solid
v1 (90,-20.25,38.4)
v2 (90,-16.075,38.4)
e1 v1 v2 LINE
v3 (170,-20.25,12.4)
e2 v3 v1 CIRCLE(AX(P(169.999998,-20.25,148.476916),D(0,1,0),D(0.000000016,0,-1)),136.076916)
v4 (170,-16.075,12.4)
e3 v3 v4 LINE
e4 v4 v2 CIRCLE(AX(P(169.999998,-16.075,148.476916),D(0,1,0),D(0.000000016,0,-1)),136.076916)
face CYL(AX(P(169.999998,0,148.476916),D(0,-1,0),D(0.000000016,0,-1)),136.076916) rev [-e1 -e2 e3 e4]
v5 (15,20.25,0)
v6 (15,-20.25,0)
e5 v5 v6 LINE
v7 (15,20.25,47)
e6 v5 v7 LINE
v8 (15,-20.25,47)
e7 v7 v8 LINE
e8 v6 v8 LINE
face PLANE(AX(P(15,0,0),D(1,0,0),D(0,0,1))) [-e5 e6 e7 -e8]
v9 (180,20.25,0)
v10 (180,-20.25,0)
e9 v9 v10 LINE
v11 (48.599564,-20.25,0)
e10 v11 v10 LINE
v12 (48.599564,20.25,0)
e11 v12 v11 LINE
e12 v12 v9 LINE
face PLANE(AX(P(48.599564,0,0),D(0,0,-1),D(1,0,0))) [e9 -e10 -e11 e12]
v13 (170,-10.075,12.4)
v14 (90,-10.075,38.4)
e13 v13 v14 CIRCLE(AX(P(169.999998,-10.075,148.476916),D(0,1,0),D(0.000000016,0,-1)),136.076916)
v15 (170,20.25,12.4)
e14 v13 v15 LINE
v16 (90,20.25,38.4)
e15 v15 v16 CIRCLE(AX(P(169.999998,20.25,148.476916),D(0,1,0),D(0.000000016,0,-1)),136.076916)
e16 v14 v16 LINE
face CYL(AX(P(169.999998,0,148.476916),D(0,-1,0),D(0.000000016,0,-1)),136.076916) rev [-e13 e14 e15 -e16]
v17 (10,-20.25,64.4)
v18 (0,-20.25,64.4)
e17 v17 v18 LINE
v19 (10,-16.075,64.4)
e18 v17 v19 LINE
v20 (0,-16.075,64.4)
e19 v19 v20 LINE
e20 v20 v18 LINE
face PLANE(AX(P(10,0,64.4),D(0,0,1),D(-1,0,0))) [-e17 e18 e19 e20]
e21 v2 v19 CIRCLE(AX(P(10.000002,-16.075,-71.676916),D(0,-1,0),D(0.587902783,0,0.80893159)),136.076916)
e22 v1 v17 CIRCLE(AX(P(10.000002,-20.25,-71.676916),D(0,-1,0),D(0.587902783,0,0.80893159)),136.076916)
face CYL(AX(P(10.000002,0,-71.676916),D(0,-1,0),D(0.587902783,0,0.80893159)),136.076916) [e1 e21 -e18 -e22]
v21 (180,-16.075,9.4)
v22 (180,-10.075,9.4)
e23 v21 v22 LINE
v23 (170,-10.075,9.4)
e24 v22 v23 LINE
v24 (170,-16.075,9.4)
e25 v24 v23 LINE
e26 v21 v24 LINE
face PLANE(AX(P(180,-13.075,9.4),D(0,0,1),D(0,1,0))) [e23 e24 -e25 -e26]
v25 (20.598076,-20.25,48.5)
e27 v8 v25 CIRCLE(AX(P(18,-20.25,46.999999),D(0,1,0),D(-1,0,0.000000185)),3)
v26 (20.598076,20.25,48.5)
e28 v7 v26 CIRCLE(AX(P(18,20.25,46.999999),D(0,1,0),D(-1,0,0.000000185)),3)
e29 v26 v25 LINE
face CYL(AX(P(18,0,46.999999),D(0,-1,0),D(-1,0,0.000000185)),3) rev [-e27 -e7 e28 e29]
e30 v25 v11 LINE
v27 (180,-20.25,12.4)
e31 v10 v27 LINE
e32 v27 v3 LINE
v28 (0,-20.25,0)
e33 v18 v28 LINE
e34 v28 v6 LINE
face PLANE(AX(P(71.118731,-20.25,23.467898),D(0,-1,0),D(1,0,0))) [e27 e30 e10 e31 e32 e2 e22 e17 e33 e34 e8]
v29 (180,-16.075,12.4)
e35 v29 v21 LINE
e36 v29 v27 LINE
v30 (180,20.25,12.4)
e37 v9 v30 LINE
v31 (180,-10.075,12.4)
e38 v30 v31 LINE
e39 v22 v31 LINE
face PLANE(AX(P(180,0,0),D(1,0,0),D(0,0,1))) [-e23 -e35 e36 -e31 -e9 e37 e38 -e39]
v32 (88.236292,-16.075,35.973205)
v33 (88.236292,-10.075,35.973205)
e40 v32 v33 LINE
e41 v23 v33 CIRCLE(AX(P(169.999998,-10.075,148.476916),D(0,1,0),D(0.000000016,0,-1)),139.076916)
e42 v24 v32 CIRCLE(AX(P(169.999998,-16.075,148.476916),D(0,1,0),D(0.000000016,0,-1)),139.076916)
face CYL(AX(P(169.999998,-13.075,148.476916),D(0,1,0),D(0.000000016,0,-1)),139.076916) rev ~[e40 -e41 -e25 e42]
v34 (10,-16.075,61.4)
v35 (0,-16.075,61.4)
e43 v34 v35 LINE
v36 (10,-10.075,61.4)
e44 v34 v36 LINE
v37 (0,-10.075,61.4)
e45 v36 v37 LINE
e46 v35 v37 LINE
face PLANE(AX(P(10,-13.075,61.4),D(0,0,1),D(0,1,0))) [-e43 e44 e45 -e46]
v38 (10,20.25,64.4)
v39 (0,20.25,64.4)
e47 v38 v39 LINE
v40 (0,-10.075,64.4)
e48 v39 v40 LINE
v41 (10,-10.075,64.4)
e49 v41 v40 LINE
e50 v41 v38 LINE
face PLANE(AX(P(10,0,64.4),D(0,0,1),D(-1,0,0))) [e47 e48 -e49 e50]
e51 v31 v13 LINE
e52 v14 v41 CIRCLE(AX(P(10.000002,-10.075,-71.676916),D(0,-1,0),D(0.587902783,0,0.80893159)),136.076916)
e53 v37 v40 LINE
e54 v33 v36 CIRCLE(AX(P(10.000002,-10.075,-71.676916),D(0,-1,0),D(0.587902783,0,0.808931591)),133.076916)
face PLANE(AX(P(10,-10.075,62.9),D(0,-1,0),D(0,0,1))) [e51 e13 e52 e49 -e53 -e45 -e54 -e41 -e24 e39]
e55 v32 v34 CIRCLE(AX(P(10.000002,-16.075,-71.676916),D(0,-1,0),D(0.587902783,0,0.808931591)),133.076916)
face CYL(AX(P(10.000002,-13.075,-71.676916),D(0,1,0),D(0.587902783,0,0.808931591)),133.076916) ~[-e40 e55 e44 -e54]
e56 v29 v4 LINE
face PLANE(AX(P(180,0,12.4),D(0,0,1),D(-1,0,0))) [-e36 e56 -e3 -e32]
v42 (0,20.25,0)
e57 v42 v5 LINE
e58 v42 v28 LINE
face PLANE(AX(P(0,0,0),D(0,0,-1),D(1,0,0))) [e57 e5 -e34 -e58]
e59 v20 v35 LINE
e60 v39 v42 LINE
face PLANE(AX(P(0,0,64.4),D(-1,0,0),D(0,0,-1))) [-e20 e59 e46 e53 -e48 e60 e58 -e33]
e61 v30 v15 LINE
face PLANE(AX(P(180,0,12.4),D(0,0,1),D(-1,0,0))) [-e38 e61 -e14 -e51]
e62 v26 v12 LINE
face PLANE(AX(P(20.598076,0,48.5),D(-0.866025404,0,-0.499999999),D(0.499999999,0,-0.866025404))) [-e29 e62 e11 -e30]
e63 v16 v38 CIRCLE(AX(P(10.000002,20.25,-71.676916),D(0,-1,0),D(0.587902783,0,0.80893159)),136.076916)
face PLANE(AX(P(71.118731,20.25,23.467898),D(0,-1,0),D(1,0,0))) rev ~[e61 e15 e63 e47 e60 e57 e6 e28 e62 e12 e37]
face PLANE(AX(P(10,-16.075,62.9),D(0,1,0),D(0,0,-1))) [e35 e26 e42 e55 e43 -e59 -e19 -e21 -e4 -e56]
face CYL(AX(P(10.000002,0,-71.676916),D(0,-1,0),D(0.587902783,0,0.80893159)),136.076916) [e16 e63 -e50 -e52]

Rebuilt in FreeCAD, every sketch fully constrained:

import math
import FreeCAD as App
import Part
import Sketcher

V = App.Vector
Q = App.Units.Quantity

doc = App.newDocument("Part")
body = doc.addObject("PartDesign::Body", "Body")

sketch1 = doc.addObject("Sketcher::SketchObject", "Sketch")
body.addObject(sketch1)
sketch1.AttachmentSupport = (doc.XZ_Plane, [""])
sketch1.MapMode = "FlatFace"
sketch1.addGeometry([
    Part.LineSegment(V(10, 64.4, 0), V(0, 64.4, 0)),
    Part.LineSegment(V(0, 64.4, 0), V(0, 0, 0)),
    Part.LineSegment(V(0, 0, 0), V(15, 0, 0)),
    Part.LineSegment(V(15, 0, 0), V(15, 47, 0)),
    Part.ArcOfCircle(Part.Circle(V(18, 47, 0), V(0, 0, 1), 3), math.radians(30), math.radians(180)),
    Part.LineSegment(V(20.6, 48.5, 0), V(48.6, 0, 0)),
    Part.LineSegment(V(48.6, 0, 0), V(180, 0, 0)),
    Part.LineSegment(V(180, 0, 0), V(180, 12.4, 0)),
    Part.LineSegment(V(180, 12.4, 0), V(170, 12.4, 0)),
    Part.ArcOfCircle(Part.Circle(V(170, 148.5, 0), V(0, 0, 1), 136.1), math.radians(-126), math.radians(-90)),
    Part.ArcOfCircle(Part.Circle(V(10, -71.7, 0), V(0, 0, 1), 136.1), math.radians(54), math.radians(90)),
], False)
sketch1.addConstraint([
    Sketcher.Constraint("Coincident", 0, 2, 1, 1),
    Sketcher.Constraint("Coincident", 1, 2, 2, 1),
    Sketcher.Constraint("Coincident", 2, 2, 3, 1),
    Sketcher.Constraint("Tangent", 3, 2, 4, 2),
    Sketcher.Constraint("Tangent", 4, 1, 5, 1),
    Sketcher.Constraint("Coincident", 5, 2, 6, 1),
    Sketcher.Constraint("Coincident", 6, 2, 7, 1),
    Sketcher.Constraint("Coincident", 7, 2, 8, 1),
    Sketcher.Constraint("Tangent", 8, 2, 9, 2),
    Sketcher.Constraint("Tangent", 9, 1, 10, 1),
    Sketcher.Constraint("Tangent", 10, 2, 0, 1),
    Sketcher.Constraint("Horizontal", 0),
    Sketcher.Constraint("Vertical", 1),
    Sketcher.Constraint("Horizontal", 2),
    Sketcher.Constraint("Vertical", 3),
    Sketcher.Constraint("Horizontal", 6),
    Sketcher.Constraint("Vertical", 7),
    Sketcher.Constraint("Horizontal", 8),
    Sketcher.Constraint("Coincident", 1, 2, -1, 1),
    Sketcher.Constraint("Equal", 9, 10),
    Sketcher.Constraint("PointOnObject", 5, 2, -1),
    Sketcher.Constraint("Equal", 0, 8),
    Sketcher.Constraint("Radius", 4, 3.0),
    Sketcher.Constraint("DistanceX", 0, 2, 0, 1, 10.0),
    Sketcher.Constraint("DistanceX", 2, 1, 2, 2, 15.0),
    Sketcher.Constraint("DistanceY", 3, 1, 3, 2, 47.0),
    Sketcher.Constraint("Angle", 5, Q("-60 deg")),
    Sketcher.Constraint("DistanceY", 1, 2, 1, 1, 64.4),
    Sketcher.Constraint("DistanceY", 7, 1, 7, 2, 12.4),
    Sketcher.Constraint("DistanceX", -1, 1, 6, 2, 180.0),
])
pad1 = doc.addObject("PartDesign::Pad", "Pad")
body.addObject(pad1)
pad1.Profile = sketch1
pad1.Length = 40.5
pad1.Midplane = True

sketch2 = doc.addObject("Sketcher::SketchObject", "Sketch001")
body.addObject(sketch2)
sketch2.AttachmentSupport = (doc.YZ_Plane, [""])
sketch2.MapMode = "FlatFace"
sketch2.AttachmentOffset = App.Placement(V(0, 0, 180), App.Rotation())
sketch2.addGeometry([
    Part.LineSegment(V(-16.1, 12.4, 0), V(-16.1, 9.4, 0)),
    Part.LineSegment(V(-16.1, 9.4, 0), V(-10.1, 9.4, 0)),
    Part.LineSegment(V(-10.1, 9.4, 0), V(-10.1, 12.4, 0)),
    Part.LineSegment(V(-10.1, 12.4, 0), V(-16.1, 12.4, 0)),
], False)
sketch2.addConstraint([
    Sketcher.Constraint("Coincident", 0, 2, 1, 1),
    Sketcher.Constraint("Coincident", 1, 2, 2, 1),
    Sketcher.Constraint("Coincident", 2, 2, 3, 1),
    Sketcher.Constraint("Coincident", 3, 2, 0, 1),
    Sketcher.Constraint("Vertical", 0),
    Sketcher.Constraint("Horizontal", 1),
    Sketcher.Constraint("Vertical", 2),
    Sketcher.Constraint("Horizontal", 3),
    Sketcher.Constraint("DistanceX", 1, 1, 1, 2, 6.0),
    Sketcher.Constraint("DistanceY", 0, 2, 0, 1, 3.0),
    Sketcher.Constraint("DistanceY", -1, 1, 0, 2, 9.4),
    Sketcher.Constraint("DistanceX", 0, 2, -1, 1, 16.075),
])

sketch3 = doc.addObject("Sketcher::SketchObject", "Sketch002")
body.addObject(sketch3)
sketch3.AttachmentSupport = (doc.XZ_Plane, [""])
sketch3.MapMode = "FlatFace"
sketch3.addGeometry([
    Part.LineSegment(V(180, 12, 0), V(170, 12, 0)),
    Part.ArcOfCircle(Part.Circle(V(170, 148, 0), V(0, 0, 1), 136), math.radians(-126), math.radians(-90)),
    Part.ArcOfCircle(Part.Circle(V(10, -72, 0), V(0, 0, 1), 136), math.radians(54), math.radians(90)),
    Part.LineSegment(V(10, 64, 0), V(0, 64, 0)),
], False)
sketch3.addConstraint([
    Sketcher.Constraint("Tangent", 0, 2, 1, 2),
    Sketcher.Constraint("Tangent", 1, 1, 2, 1),
    Sketcher.Constraint("Tangent", 2, 2, 3, 1),
    Sketcher.Constraint("Horizontal", 0),
    Sketcher.Constraint("Horizontal", 3),
    Sketcher.Constraint("Equal", 1, 2),
    Sketcher.Constraint("PointOnObject", 3, 2, -2),
    Sketcher.Constraint("Equal", 0, 3),
    Sketcher.Constraint("DistanceX", 0, 2, 0, 1, 10.0),
    Sketcher.Constraint("DistanceX", -1, 1, 0, 1, 180.0),
    Sketcher.Constraint("DistanceY", 0, 2, 2, 2, 52.0),
    Sketcher.Constraint("DistanceY", -1, 1, 0, 1, 12.4),
])
doc.recompute()

subtractivepipe = doc.addObject("PartDesign::SubtractivePipe", "SubtractivePipe")
body.addObject(subtractivepipe)
subtractivepipe.Profile = sketch2
subtractivepipe.Spine = (sketch3, ["Edge1", "Edge2", "Edge3", "Edge4"])

doc.recompute()
